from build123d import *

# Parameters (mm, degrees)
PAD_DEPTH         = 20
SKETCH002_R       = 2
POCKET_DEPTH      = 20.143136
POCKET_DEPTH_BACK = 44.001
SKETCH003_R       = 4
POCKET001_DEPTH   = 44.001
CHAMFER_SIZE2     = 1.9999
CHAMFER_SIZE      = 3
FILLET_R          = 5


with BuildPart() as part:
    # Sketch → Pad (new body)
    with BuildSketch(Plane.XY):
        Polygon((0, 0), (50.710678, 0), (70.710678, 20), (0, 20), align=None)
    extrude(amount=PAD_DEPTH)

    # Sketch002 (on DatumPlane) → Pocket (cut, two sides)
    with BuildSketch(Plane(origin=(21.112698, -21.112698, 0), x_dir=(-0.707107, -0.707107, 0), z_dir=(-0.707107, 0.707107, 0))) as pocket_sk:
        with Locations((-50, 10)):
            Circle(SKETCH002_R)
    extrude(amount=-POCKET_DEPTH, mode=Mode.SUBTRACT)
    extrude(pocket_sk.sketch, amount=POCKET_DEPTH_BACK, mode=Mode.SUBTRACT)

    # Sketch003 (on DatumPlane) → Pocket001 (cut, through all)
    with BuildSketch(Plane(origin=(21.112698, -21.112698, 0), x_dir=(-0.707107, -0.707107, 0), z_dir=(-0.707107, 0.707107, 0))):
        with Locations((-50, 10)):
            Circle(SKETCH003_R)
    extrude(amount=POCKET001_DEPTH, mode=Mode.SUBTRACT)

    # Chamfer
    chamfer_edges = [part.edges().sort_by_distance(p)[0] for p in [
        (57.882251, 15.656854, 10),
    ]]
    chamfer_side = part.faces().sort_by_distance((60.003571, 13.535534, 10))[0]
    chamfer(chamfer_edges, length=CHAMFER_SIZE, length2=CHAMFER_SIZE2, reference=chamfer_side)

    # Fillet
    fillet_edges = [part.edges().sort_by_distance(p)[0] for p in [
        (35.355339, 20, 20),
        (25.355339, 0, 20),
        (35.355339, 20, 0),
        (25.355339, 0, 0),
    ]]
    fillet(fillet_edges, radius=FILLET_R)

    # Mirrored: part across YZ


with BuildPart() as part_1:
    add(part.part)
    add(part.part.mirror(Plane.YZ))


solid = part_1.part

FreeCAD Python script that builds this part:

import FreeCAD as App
import Part
import Sketcher

V = App.Vector
Q = App.Units.Quantity


def edges_at(feature, points):
    """Names of the edges that pass closest to the given points."""
    edges = feature.Shape.Edges
    near = lambda p: min(range(len(edges)), key=lambda i: edges[i].distToShape(Part.Vertex(*p))[0])
    return sorted({f"Edge{near(p) + 1}" for p in points})

doc = App.newDocument("Part")
body = doc.addObject("PartDesign::Body", "Body")

# Sketch on XY plane
sketch1 = body.newObject("Sketcher::SketchObject", "Sketch")
sketch1.AttachmentSupport = (doc.getObject("XY_Plane"), [""])
sketch1.MapMode = "FlatFace"
sketch1.addGeometry(Part.LineSegment(V(0, 0, 0), V(51, 0, 0)), False)
sketch1.addGeometry(Part.LineSegment(V(51, 0, 0), V(71, 20, 0)), False)
sketch1.addGeometry(Part.LineSegment(V(71, 20, 0), V(0, 20, 0)), False)
sketch1.addGeometry(Part.LineSegment(V(0, 20, 0), V(0, 0, 0)), False)
sketch1.addConstraint(Sketcher.Constraint("Coincident", 0, 2, 1, 1))
sketch1.addConstraint(Sketcher.Constraint("Coincident", 1, 2, 2, 1))
sketch1.addConstraint(Sketcher.Constraint("Coincident", 2, 2, 3, 1))
sketch1.addConstraint(Sketcher.Constraint("Coincident", 3, 2, 0, 1))
sketch1.addConstraint(Sketcher.Constraint("Horizontal", 0))
sketch1.addConstraint(Sketcher.Constraint("Horizontal", 2))
sketch1.addConstraint(Sketcher.Constraint("Vertical", 3))
sketch1.addConstraint(Sketcher.Constraint("Coincident", 3, 2, -1, 1))
sketch1.addConstraint(Sketcher.Constraint("DistanceY", 3, 2, 3, 1, Q("20 mm")))
sketch1.addConstraint(Sketcher.Constraint("Angle", 1, Q("45 deg")))
sketch1.addConstraint(Sketcher.Constraint("DistanceX", 2, 2, 2, 1, Q("70.710678 mm")))
pad1 = body.newObject("PartDesign::Pad", "Pad")
pad1.Profile = sketch1
pad1.Length = 20

# Sketch on an angled plane
sketch2 = body.newObject("Sketcher::SketchObject", "Sketch001")
sketch2.Placement = App.Placement(V(21.112698, -21.112698, 0), App.Rotation(V(-0.707106781, -0.707106781, 0), V(0, 0, 0.999999999), V(-0.707106781, 0.707106781, 0), "ZXY"))
sketch2.addGeometry(Part.Circle(V(-50, 10, 0), V(0, 0, 1), 2), False)
sketch2.addConstraint(Sketcher.Constraint("Diameter", 0, Q("4 mm")))
sketch2.addConstraint(Sketcher.Constraint("DistanceX", 0, 3, -1, 1, Q("50 mm")))
sketch2.addConstraint(Sketcher.Constraint("DistanceY", -1, 1, 0, 3, Q("10 mm")))
pocket1 = body.newObject("PartDesign::Pocket", "Pocket")
pocket1.Profile = sketch2
pocket1.Type = "ThroughAll"
pocket1.Midplane = True

# Sketch on an angled plane
sketch3 = body.newObject("Sketcher::SketchObject", "Sketch002")
sketch3.Placement = App.Placement(V(21.112698, -21.112698, 0), App.Rotation(V(-0.707106781, -0.707106781, 0), V(0, 0, 0.999999999), V(-0.707106781, 0.707106781, 0), "ZXY"))
sketch3.addGeometry(Part.Circle(V(-50, 10, 0), V(0, 0, 1), 4), False)
sketch3.addConstraint(Sketcher.Constraint("Diameter", 0, Q("8 mm")))
sketch3.addConstraint(Sketcher.Constraint("DistanceX", 0, 3, -1, 1, Q("50 mm")))
sketch3.addConstraint(Sketcher.Constraint("DistanceY", -1, 1, 0, 3, Q("10 mm")))
pocket2 = body.newObject("PartDesign::Pocket", "Pocket001")
pocket2.Profile = sketch3
pocket2.Type = "ThroughAll"
pocket2.Reversed = True
doc.recompute()

chamfer = body.newObject("PartDesign::Chamfer", "Chamfer")
chamfer.Base = (pocket2, edges_at(pocket2, [(57.882, 15.657, 10)]))
chamfer.ChamferType = "Two distances"
chamfer.Size = 3
chamfer.Size2 = 1.9999
doc.recompute()

fillet = body.newObject("PartDesign::Fillet", "Fillet")
fillet.Base = (chamfer, edges_at(chamfer, [
    (35.355, 20, 20),
    (25.355, 0, 20),
    (35.355, 20, 0),
    (25.355, 0, 0),
]))
fillet.Radius = 5
body2 = doc.addObject("PartDesign::Body", "Body001")
doc.recompute()

body2.BaseFeature = body
doc.recompute()

mirroring = doc.addObject("Part::Mirroring", "Mirroring")
mirroring.Source = body
mirroring.Base = V(0, 0, 0)
mirroring.Normal = V(1, 0, 0)
body3 = doc.addObject("PartDesign::Body", "Body002")
body3.BaseFeature = mirroring
boolean = body2.newObject("PartDesign::Boolean", "Boolean")
boolean.Type = "Fuse"
boolean.addObjects([body3])
doc.recompute()
mirroring.Visibility = False

doc.recompute()
